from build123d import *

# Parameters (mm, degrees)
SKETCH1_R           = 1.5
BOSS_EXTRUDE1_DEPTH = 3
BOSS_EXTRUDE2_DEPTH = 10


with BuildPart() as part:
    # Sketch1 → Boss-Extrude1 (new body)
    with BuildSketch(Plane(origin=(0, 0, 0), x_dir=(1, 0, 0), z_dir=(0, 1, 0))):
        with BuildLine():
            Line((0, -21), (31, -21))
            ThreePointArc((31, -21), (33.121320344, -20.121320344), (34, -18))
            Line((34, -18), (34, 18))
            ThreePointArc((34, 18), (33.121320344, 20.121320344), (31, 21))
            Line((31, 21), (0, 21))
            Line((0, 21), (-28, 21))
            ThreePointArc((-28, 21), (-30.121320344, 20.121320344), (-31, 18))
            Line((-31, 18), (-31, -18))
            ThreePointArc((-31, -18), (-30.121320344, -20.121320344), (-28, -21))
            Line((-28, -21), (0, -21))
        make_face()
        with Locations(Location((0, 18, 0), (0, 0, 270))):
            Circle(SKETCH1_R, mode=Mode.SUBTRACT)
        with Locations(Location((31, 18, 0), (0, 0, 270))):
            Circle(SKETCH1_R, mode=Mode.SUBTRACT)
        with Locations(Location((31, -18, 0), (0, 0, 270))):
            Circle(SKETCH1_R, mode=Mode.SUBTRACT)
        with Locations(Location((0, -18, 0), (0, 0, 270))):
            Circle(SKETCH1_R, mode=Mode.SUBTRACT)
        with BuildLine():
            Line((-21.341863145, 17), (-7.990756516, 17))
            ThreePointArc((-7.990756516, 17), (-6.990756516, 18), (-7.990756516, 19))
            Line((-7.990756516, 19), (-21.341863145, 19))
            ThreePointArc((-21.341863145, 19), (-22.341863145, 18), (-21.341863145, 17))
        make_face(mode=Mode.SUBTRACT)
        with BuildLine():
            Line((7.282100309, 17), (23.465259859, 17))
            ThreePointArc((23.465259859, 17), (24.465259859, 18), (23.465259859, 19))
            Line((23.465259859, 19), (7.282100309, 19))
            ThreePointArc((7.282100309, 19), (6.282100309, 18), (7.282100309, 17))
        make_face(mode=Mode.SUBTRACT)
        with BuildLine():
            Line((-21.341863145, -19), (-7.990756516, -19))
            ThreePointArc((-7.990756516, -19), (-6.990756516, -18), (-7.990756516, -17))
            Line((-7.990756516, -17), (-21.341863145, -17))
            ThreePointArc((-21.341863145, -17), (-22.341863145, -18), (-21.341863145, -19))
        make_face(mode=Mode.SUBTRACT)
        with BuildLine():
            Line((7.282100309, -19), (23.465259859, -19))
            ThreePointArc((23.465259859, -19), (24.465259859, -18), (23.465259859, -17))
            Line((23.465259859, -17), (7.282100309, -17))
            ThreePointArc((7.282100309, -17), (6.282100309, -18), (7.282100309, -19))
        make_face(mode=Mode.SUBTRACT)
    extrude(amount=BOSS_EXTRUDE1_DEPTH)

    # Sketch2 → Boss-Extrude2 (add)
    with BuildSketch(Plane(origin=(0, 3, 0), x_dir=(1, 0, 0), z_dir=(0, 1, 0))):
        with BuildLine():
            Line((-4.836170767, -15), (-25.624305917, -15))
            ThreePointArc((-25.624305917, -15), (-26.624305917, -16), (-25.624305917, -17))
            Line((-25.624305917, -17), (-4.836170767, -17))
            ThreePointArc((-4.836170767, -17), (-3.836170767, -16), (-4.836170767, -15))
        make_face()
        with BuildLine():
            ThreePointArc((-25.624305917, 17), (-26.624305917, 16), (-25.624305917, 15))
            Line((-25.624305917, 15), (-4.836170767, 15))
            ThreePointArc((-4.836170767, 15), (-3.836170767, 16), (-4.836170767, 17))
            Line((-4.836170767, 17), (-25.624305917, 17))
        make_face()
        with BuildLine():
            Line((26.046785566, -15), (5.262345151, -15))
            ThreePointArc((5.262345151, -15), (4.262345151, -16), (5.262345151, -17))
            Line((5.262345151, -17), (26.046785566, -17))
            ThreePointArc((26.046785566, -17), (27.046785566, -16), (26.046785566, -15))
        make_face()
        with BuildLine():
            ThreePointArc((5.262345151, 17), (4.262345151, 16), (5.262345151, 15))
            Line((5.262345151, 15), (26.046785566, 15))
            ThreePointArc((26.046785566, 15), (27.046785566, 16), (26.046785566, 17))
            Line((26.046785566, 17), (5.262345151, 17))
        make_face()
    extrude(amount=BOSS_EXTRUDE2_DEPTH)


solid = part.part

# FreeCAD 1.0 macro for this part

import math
import FreeCAD as App
import Part
import Sketcher

doc = App.newDocument("Part")
body = doc.addObject("PartDesign::Body", "Body")

# Sketch on XZ plane
sketch1 = body.newObject("Sketcher::SketchObject", "Sketch")
sketch1.AttachmentSupport = (doc.getObject("XZ_Plane"), [""])
sketch1.MapMode = "FlatFace"
sketch1.addGeometry(Part.ArcOfCircle(Part.Circle(App.Vector(31, 18, 0), App.Vector(0, 0, 1), 3), math.radians(0), math.radians(90)), False)
sketch1.addGeometry(Part.LineSegment(App.Vector(34, 18, 0), App.Vector(34, -18, 0)), False)
sketch1.addGeometry(Part.ArcOfCircle(Part.Circle(App.Vector(31, -18, 0), App.Vector(0, 0, 1), 3), math.radians(-90), math.radians(0)), False)
sketch1.addGeometry(Part.LineSegment(App.Vector(31, -21, 0), App.Vector(-28, -21, 0)), False)
sketch1.addGeometry(Part.ArcOfCircle(Part.Circle(App.Vector(-28, -18, 0), App.Vector(0, 0, 1), 3), math.radians(180), math.radians(270)), False)
sketch1.addGeometry(Part.LineSegment(App.Vector(-31, -18, 0), App.Vector(-31, 18, 0)), False)
sketch1.addGeometry(Part.ArcOfCircle(Part.Circle(App.Vector(-28, 18, 0), App.Vector(0, 0, 1), 3), math.radians(90), math.radians(180)), False)
sketch1.addGeometry(Part.LineSegment(App.Vector(-28, 21, 0), App.Vector(31, 21, 0)), False)
sketch1.addGeometry(Part.LineSegment(App.Vector(-8, 19, 0), App.Vector(-21.3, 19, 0)), False)
sketch1.addGeometry(Part.ArcOfCircle(Part.Circle(App.Vector(-21.3, 18, 0), App.Vector(0, 0, 1), 1), math.radians(90), math.radians(270)), False)
sketch1.addGeometry(Part.LineSegment(App.Vector(-21.3, 17, 0), App.Vector(-8, 17, 0)), False)
sketch1.addGeometry(Part.ArcOfCircle(Part.Circle(App.Vector(-8, 18, 0), App.Vector(0, 0, 1), 1), math.radians(-90), math.radians(90)), False)
sketch1.addGeometry(Part.Circle(App.Vector(0, 18, 0), App.Vector(0, 0, 1), 1.5), False)
sketch1.addGeometry(Part.LineSegment(App.Vector(23.5, 19, 0), App.Vector(7.3, 19, 0)), False)
sketch1.addGeometry(Part.ArcOfCircle(Part.Circle(App.Vector(7.3, 18, 0), App.Vector(0, 0, 1), 1), math.radians(90), math.radians(270)), False)
sketch1.addGeometry(Part.LineSegment(App.Vector(7.3, 17, 0), App.Vector(23.5, 17, 0)), False)
sketch1.addGeometry(Part.ArcOfCircle(Part.Circle(App.Vector(23.5, 18, 0), App.Vector(0, 0, 1), 1), math.radians(-90), math.radians(90)), False)
sketch1.addGeometry(Part.Circle(App.Vector(31, 18, 0), App.Vector(0, 0, 1), 1.5), False)
sketch1.addGeometry(Part.LineSegment(App.Vector(-8, -17, 0), App.Vector(-21.3, -17, 0)), False)
sketch1.addGeometry(Part.ArcOfCircle(Part.Circle(App.Vector(-21.3, -18, 0), App.Vector(0, 0, 1), 1), math.radians(90), math.radians(270)), False)
sketch1.addGeometry(Part.LineSegment(App.Vector(-21.3, -19, 0), App.Vector(-8, -19, 0)), False)
sketch1.addGeometry(Part.ArcOfCircle(Part.Circle(App.Vector(-8, -18, 0), App.Vector(0, 0, 1), 1), math.radians(-90), math.radians(90)), False)
sketch1.addGeometry(Part.Circle(App.Vector(0, -18, 0), App.Vector(0, 0, 1), 1.5), False)
sketch1.addGeometry(Part.LineSegment(App.Vector(23.5, -17, 0), App.Vector(7.3, -17, 0)), False)
sketch1.addGeometry(Part.ArcOfCircle(Part.Circle(App.Vector(7.3, -18, 0), App.Vector(0, 0, 1), 1), math.radians(90), math.radians(270)), False)
sketch1.addGeometry(Part.LineSegment(App.Vector(7.3, -19, 0), App.Vector(23.5, -19, 0)), False)
sketch1.addGeometry(Part.ArcOfCircle(Part.Circle(App.Vector(23.5, -18, 0), App.Vector(0, 0, 1), 1), math.radians(-90), math.radians(90)), False)
sketch1.addGeometry(Part.Circle(App.Vector(31, -18, 0), App.Vector(0, 0, 1), 1.5), False)
sketch1.addConstraint(Sketcher.Constraint("Tangent", 0, 1, 1, 1))
sketch1.addConstraint(Sketcher.Constraint("Tangent", 1, 2, 2, 2))
sketch1.addConstraint(Sketcher.Constraint("Tangent", 2, 1, 3, 1))
sketch1.addConstraint(Sketcher.Constraint("Tangent", 3, 2, 4, 2))
sketch1.addConstraint(Sketcher.Constraint("Tangent", 4, 1, 5, 1))
sketch1.addConstraint(Sketcher.Constraint("Tangent", 5, 2, 6, 2))
sketch1.addConstraint(Sketcher.Constraint("Tangent", 6, 1, 7, 1))
sketch1.addConstraint(Sketcher.Constraint("Tangent", 7, 2, 0, 2))
sketch1.addConstraint(Sketcher.Constraint("Tangent", 8, 2, 9, 1))
sketch1.addConstraint(Sketcher.Constraint("Tangent", 9, 2, 10, 1))
sketch1.addConstraint(Sketcher.Constraint("Tangent", 10, 2, 11, 1))
sketch1.addConstraint(Sketcher.Constraint("Tangent", 11, 2, 8, 1))
sketch1.addConstraint(Sketcher.Constraint("Tangent", 13, 2, 14, 1))
sketch1.addConstraint(Sketcher.Constraint("Tangent", 14, 2, 15, 1))
sketch1.addConstraint(Sketcher.Constraint("Tangent", 15, 2, 16, 1))
sketch1.addConstraint(Sketcher.Constraint("Tangent", 16, 2, 13, 1))
sketch1.addConstraint(Sketcher.Constraint("Tangent", 18, 2, 19, 1))
sketch1.addConstraint(Sketcher.Constraint("Tangent", 19, 2, 20, 1))
sketch1.addConstraint(Sketcher.Constraint("Tangent", 20, 2, 21, 1))
sketch1.addConstraint(Sketcher.Constraint("Tangent", 21, 2, 18, 1))
sketch1.addConstraint(Sketcher.Constraint("Tangent", 23, 2, 24, 1))
sketch1.addConstraint(Sketcher.Constraint("Tangent", 24, 2, 25, 1))
sketch1.addConstraint(Sketcher.Constraint("Tangent", 25, 2, 26, 1))
sketch1.addConstraint(Sketcher.Constraint("Tangent", 26, 2, 23, 1))
sketch1.addConstraint(Sketcher.Constraint("Vertical", 1))
sketch1.addConstraint(Sketcher.Constraint("Horizontal", 3))
sketch1.addConstraint(Sketcher.Constraint("Vertical", 5))
sketch1.addConstraint(Sketcher.Constraint("Horizontal", 7))
sketch1.addConstraint(Sketcher.Constraint("Horizontal", 8))
sketch1.addConstraint(Sketcher.Constraint("Horizontal", 10))
sketch1.addConstraint(Sketcher.Constraint("Horizontal", 13))
sketch1.addConstraint(Sketcher.Constraint("Horizontal", 15))
sketch1.addConstraint(Sketcher.Constraint("Horizontal", 18))
sketch1.addConstraint(Sketcher.Constraint("Horizontal", 20))
sketch1.addConstraint(Sketcher.Constraint("Horizontal", 23))
sketch1.addConstraint(Sketcher.Constraint("Horizontal", 25))
sketch1.addConstraint(Sketcher.Constraint("Coincident", 17, 3, 0, 3))
sketch1.addConstraint(Sketcher.Constraint("Coincident", 27, 3, 2, 3))
sketch1.addConstraint(Sketcher.Constraint("Equal", 0, 2))
sketch1.addConstraint(Sketcher.Constraint("Equal", 2, 4))
sketch1.addConstraint(Sketcher.Constraint("Equal", 4, 6))
sketch1.addConstraint(Sketcher.Constraint("Equal", 11, 14))
sketch1.addConstraint(Sketcher.Constraint("Equal", 12, 17))
sketch1.addConstraint(Sketcher.Constraint("Equal", 16, 19))
sketch1.addConstraint(Sketcher.Constraint("Equal", 17, 22))
sketch1.addConstraint(Sketcher.Constraint("Equal", 21, 24))
sketch1.addConstraint(Sketcher.Constraint("Equal", 22, 27))
sketch1.addConstraint(Sketcher.Constraint("Symmetric", 12, 3, 22, 3, -1, 1))
sketch1.addConstraint(Sketcher.Constraint("Symmetric", 9, 3, 19, 3, -1))
sketch1.addConstraint(Sketcher.Constraint("Symmetric", 14, 3, 24, 3, -1))
sketch1.addConstraint(Sketcher.Constraint("PointOnObject", 12, 3, -2))
sketch1.addConstraint(Sketcher.Constraint("Horizontal", 6, 3, 9, 3))
sketch1.addConstraint(Sketcher.Constraint("Horizontal", 11, 3, 12, 3))
sketch1.addConstraint(Sketcher.Constraint("Horizontal", 12, 3, 14, 3))
sketch1.addConstraint(Sketcher.Constraint("Horizontal", 4, 3, 19, 3))
sketch1.addConstraint(Sketcher.Constraint("Vertical", 11, 3, 21, 3))
sketch1.addConstraint(Sketcher.Constraint("Vertical", 16, 3, 26, 3))
sketch1.addConstraint(Sketcher.Constraint("Diameter", 12, 3.0))
sketch1.addConstraint(Sketcher.Constraint("Radius", 0, 3.0))
sketch1.addConstraint(Sketcher.Constraint("Radius", 9, 1.0))
sketch1.addConstraint(Sketcher.Constraint("DistanceX", 3, 2, 3, 1, 59.0))
sketch1.addConstraint(Sketcher.Constraint("DistanceY", 1, 2, 1, 1, 36.0))
sketch1.addConstraint(Sketcher.Constraint("DistanceX", -1, 1, 0, 3, 31.0))
sketch1.addConstraint(Sketcher.Constraint("DistanceX", 13, 2, 13, 1, 16.18316))
sketch1.addConstraint(Sketcher.Constraint("DistanceX", -1, 1, 14, 3, 7.2821))
sketch1.addConstraint(Sketcher.Constraint("DistanceX", 8, 2, 8, 1, 13.351107))
sketch1.addConstraint(Sketcher.Constraint("DistanceX", 9, 3, -1, 1, 21.341863))
pad1 = body.newObject("PartDesign::Pad", "Pad")
pad1.Profile = sketch1
pad1.Length = 3
pad1.Reversed = True

# Sketch on XZ plane
sketch2 = body.newObject("Sketcher::SketchObject", "Sketch001")
sketch2.AttachmentSupport = (doc.getObject("XZ_Plane"), [""])
sketch2.MapMode = "FlatFace"
sketch2.AttachmentOffset = App.Placement(App.Vector(0, 0, -3), App.Rotation())
sketch2.addGeometry(Part.LineSegment(App.Vector(-4.8, 15, 0), App.Vector(-25.6, 15, 0)), False)
sketch2.addGeometry(Part.ArcOfCircle(Part.Circle(App.Vector(-25.6, 16, 0), App.Vector(0, 0, 1), 1), math.radians(90), math.radians(270)), False)
sketch2.addGeometry(Part.LineSegment(App.Vector(-25.6, 17, 0), App.Vector(-4.8, 17, 0)), False)
sketch2.addGeometry(Part.ArcOfCircle(Part.Circle(App.Vector(-4.8, 16, 0), App.Vector(0, 0, 1), 1), math.radians(-90), math.radians(90)), False)
sketch2.addGeometry(Part.ArcOfCircle(Part.Circle(App.Vector(-25.6, -16, 0), App.Vector(0, 0, 1), 1), math.radians(90), math.radians(270)), False)
sketch2.addGeometry(Part.LineSegment(App.Vector(-25.6, -15, 0), App.Vector(-4.8, -15, 0)), False)
sketch2.addGeometry(Part.ArcOfCircle(Part.Circle(App.Vector(-4.8, -16, 0), App.Vector(0, 0, 1), 1), math.radians(-90), math.radians(90)), False)
sketch2.addGeometry(Part.LineSegment(App.Vector(-4.8, -17, 0), App.Vector(-25.6, -17, 0)), False)
sketch2.addGeometry(Part.LineSegment(App.Vector(26, 15, 0), App.Vector(5.3, 15, 0)), False)
sketch2.addGeometry(Part.ArcOfCircle(Part.Circle(App.Vector(5.3, 16, 0), App.Vector(0, 0, 1), 1), math.radians(90), math.radians(270)), False)
sketch2.addGeometry(Part.LineSegment(App.Vector(5.3, 17, 0), App.Vector(26, 17, 0)), False)
sketch2.addGeometry(Part.ArcOfCircle(Part.Circle(App.Vector(26, 16, 0), App.Vector(0, 0, 1), 1), math.radians(-90), math.radians(90)), False)
sketch2.addGeometry(Part.ArcOfCircle(Part.Circle(App.Vector(5.3, -16, 0), App.Vector(0, 0, 1), 1), math.radians(90), math.radians(270)), False)
sketch2.addGeometry(Part.LineSegment(App.Vector(5.3, -15, 0), App.Vector(26, -15, 0)), False)
sketch2.addGeometry(Part.ArcOfCircle(Part.Circle(App.Vector(26, -16, 0), App.Vector(0, 0, 1), 1), math.radians(-90), math.radians(90)), False)
sketch2.addGeometry(Part.LineSegment(App.Vector(26, -17, 0), App.Vector(5.3, -17, 0)), False)
sketch2.addConstraint(Sketcher.Constraint("Tangent", 0, 2, 1, 2))
sketch2.addConstraint(Sketcher.Constraint("Tangent", 1, 1, 2, 1))
sketch2.addConstraint(Sketcher.Constraint("Tangent", 2, 2, 3, 2))
sketch2.addConstraint(Sketcher.Constraint("Tangent", 3, 1, 0, 1))
sketch2.addConstraint(Sketcher.Constraint("Tangent", 4, 1, 5, 1))
sketch2.addConstraint(Sketcher.Constraint("Tangent", 5, 2, 6, 2))
sketch2.addConstraint(Sketcher.Constraint("Tangent", 6, 1, 7, 1))
sketch2.addConstraint(Sketcher.Constraint("Tangent", 7, 2, 4, 2))
sketch2.addConstraint(Sketcher.Constraint("Tangent", 8, 2, 9, 2))
sketch2.addConstraint(Sketcher.Constraint("Tangent", 9, 1, 10, 1))
sketch2.addConstraint(Sketcher.Constraint("Tangent", 10, 2, 11, 2))
sketch2.addConstraint(Sketcher.Constraint("Tangent", 11, 1, 8, 1))
sketch2.addConstraint(Sketcher.Constraint("Tangent", 12, 1, 13, 1))
sketch2.addConstraint(Sketcher.Constraint("Tangent", 13, 2, 14, 2))
sketch2.addConstraint(Sketcher.Constraint("Tangent", 14, 1, 15, 1))
sketch2.addConstraint(Sketcher.Constraint("Tangent", 15, 2, 12, 2))
sketch2.addConstraint(Sketcher.Constraint("Horizontal", 0))
sketch2.addConstraint(Sketcher.Constraint("Horizontal", 2))
sketch2.addConstraint(Sketcher.Constraint("Horizontal", 5))
sketch2.addConstraint(Sketcher.Constraint("Horizontal", 7))
sketch2.addConstraint(Sketcher.Constraint("Horizontal", 8))
sketch2.addConstraint(Sketcher.Constraint("Horizontal", 10))
sketch2.addConstraint(Sketcher.Constraint("Horizontal", 13))
sketch2.addConstraint(Sketcher.Constraint("Horizontal", 15))
sketch2.addConstraint(Sketcher.Constraint("Equal", 3, 4))
sketch2.addConstraint(Sketcher.Constraint("Equal", 6, 9))
sketch2.addConstraint(Sketcher.Constraint("Equal", 11, 12))
sketch2.addConstraint(Sketcher.Constraint("Symmetric", 1, 3, 4, 3, -1))
sketch2.addConstraint(Sketcher.Constraint("Symmetric", 9, 3, 12, 3, -1))
sketch2.addConstraint(Sketcher.Constraint("Horizontal", 3, 3, 9, 3))
sketch2.addConstraint(Sketcher.Constraint("Vertical", 3, 3, 6, 3))
sketch2.addConstraint(Sketcher.Constraint("Vertical", 11, 3, 14, 3))
sketch2.addConstraint(Sketcher.Constraint("Radius", 1, 1.0))
sketch2.addConstraint(Sketcher.Constraint("DistanceY", -1, 1, 1, 3, 16.0))
sketch2.addConstraint(Sketcher.Constraint("DistanceX", 8, 2, 8, 1, 20.78444))
sketch2.addConstraint(Sketcher.Constraint("DistanceX", 0, 2, 0, 1, 20.788135))
sketch2.addConstraint(Sketcher.Constraint("DistanceX", 3, 3, -1, 1, 4.836171))
sketch2.addConstraint(Sketcher.Constraint("DistanceX", 1, 3, 9, 3, 30.886651))
pad2 = body.newObject("PartDesign::Pad", "Pad001")
pad2.Profile = sketch2
pad2.Length = 10
pad2.Reversed = True

doc.recompute()
